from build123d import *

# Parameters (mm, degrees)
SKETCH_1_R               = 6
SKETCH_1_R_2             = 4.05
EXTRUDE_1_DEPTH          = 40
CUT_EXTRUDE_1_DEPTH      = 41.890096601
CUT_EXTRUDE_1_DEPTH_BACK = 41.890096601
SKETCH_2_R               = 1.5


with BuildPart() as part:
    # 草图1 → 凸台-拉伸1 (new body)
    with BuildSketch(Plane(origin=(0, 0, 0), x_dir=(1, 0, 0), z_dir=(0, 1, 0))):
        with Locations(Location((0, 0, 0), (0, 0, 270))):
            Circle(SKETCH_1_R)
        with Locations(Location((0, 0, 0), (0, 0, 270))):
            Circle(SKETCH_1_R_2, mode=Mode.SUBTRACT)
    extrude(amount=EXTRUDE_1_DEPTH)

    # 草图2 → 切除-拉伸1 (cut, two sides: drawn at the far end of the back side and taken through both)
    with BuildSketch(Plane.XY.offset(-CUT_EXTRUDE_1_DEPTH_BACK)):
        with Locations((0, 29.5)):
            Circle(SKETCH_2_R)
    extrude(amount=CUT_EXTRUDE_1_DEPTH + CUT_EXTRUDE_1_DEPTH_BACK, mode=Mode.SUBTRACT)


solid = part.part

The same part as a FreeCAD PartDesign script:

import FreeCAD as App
import Part
import Sketcher

V = App.Vector

doc = App.newDocument("Part")
body = doc.addObject("PartDesign::Body", "Body")

# Sketch on XZ plane
sketch1 = body.newObject("Sketcher::SketchObject", "Sketch")
sketch1.AttachmentSupport = (doc.getObject("XZ_Plane"), [""])
sketch1.MapMode = "FlatFace"
sketch1.addGeometry([
    Part.Circle(V(0, 0, 0), V(0, 0, 1), 6),
    Part.Circle(V(0, 0, 0), V(0, 0, 1), 4),
], False)
sketch1.addConstraint([
    Sketcher.Constraint("Coincident", 0, 3, -1, 1),
    Sketcher.Constraint("Coincident", 1, 3, -1, 1),
    Sketcher.Constraint("Diameter", 0, 12.0),
    Sketcher.Constraint("Diameter", 1, 8.1),
])
pad1 = body.newObject("PartDesign::Pad", "Pad")
pad1.Profile = sketch1
pad1.Length = 40
pad1.Reversed = True

# Sketch on XY plane
sketch2 = body.newObject("Sketcher::SketchObject", "Sketch001")
sketch2.AttachmentSupport = (doc.getObject("XY_Plane"), [""])
sketch2.MapMode = "FlatFace"
sketch2.addGeometry(Part.Circle(V(0, 29.5, 0), V(0, 0, 1), 1.5), False)
sketch2.addConstraint([
    Sketcher.Constraint("PointOnObject", 0, 3, -2),
    Sketcher.Constraint("Diameter", 0, 3.0),
    Sketcher.Constraint("DistanceY", -1, 1, 0, 3, 29.5),
])
pocket1 = body.newObject("PartDesign::Pocket", "Pocket")
pocket1.Profile = sketch2
pocket1.Type = "ThroughAll"
pocket1.Midplane = True

doc.recompute()
